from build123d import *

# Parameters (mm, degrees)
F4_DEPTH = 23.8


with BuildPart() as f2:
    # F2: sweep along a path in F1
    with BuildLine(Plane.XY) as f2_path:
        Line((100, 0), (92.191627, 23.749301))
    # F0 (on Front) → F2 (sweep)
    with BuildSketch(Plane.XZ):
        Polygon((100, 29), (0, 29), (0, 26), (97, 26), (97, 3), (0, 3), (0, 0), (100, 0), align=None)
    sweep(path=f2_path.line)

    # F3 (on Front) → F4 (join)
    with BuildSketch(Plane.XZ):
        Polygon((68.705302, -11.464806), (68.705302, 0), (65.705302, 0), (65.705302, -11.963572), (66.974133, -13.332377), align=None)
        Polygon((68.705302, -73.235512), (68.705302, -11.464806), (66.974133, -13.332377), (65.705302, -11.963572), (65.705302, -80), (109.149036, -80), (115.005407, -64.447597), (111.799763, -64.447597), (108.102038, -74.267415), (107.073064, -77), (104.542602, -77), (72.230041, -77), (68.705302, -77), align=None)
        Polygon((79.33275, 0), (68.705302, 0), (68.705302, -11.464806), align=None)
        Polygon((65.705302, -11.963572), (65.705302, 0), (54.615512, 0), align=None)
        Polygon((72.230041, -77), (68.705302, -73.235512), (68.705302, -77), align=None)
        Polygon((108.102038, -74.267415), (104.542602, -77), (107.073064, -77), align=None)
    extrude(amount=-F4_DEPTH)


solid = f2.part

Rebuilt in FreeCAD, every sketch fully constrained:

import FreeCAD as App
import Part
import Sketcher
Q = App.Units.Quantity

doc = App.newDocument("Part")
body = doc.addObject("PartDesign::Body", "Body")

# Sketch on XZ plane
sketch1 = body.newObject("Sketcher::SketchObject", "Sketch")
sketch1.AttachmentSupport = (doc.getObject("XZ_Plane"), [""])
sketch1.MapMode = "FlatFace"
sketch1.addGeometry(Part.LineSegment(App.Vector(100, 29, 0), App.Vector(0, 29, 0)), False)
sketch1.addGeometry(Part.LineSegment(App.Vector(0, 29, 0), App.Vector(0, 26, 0)), False)
sketch1.addGeometry(Part.LineSegment(App.Vector(0, 26, 0), App.Vector(97, 26, 0)), False)
sketch1.addGeometry(Part.LineSegment(App.Vector(97, 26, 0), App.Vector(97, 3, 0)), False)
sketch1.addGeometry(Part.LineSegment(App.Vector(97, 3, 0), App.Vector(0, 3, 0)), False)
sketch1.addGeometry(Part.LineSegment(App.Vector(0, 3, 0), App.Vector(0, 0, 0)), False)
sketch1.addGeometry(Part.LineSegment(App.Vector(0, 0, 0), App.Vector(100, 0, 0)), False)
sketch1.addGeometry(Part.LineSegment(App.Vector(100, 0, 0), App.Vector(100, 29, 0)), False)
sketch1.addConstraint(Sketcher.Constraint("Coincident", 0, 2, 1, 1))
sketch1.addConstraint(Sketcher.Constraint("Coincident", 1, 2, 2, 1))
sketch1.addConstraint(Sketcher.Constraint("Coincident", 2, 2, 3, 1))
sketch1.addConstraint(Sketcher.Constraint("Coincident", 3, 2, 4, 1))
sketch1.addConstraint(Sketcher.Constraint("Coincident", 4, 2, 5, 1))
sketch1.addConstraint(Sketcher.Constraint("Coincident", 5, 2, 6, 1))
sketch1.addConstraint(Sketcher.Constraint("Coincident", 6, 2, 7, 1))
sketch1.addConstraint(Sketcher.Constraint("Coincident", 7, 2, 0, 1))
sketch1.addConstraint(Sketcher.Constraint("Horizontal", 0))
sketch1.addConstraint(Sketcher.Constraint("Vertical", 1))
sketch1.addConstraint(Sketcher.Constraint("Horizontal", 2))
sketch1.addConstraint(Sketcher.Constraint("Vertical", 3))
sketch1.addConstraint(Sketcher.Constraint("Horizontal", 4))
sketch1.addConstraint(Sketcher.Constraint("Vertical", 5))
sketch1.addConstraint(Sketcher.Constraint("Horizontal", 6))
sketch1.addConstraint(Sketcher.Constraint("Vertical", 7))
sketch1.addConstraint(Sketcher.Constraint("Coincident", 5, 2, -1, 1))
sketch1.addConstraint(Sketcher.Constraint("PointOnObject", 0, 2, -2))
sketch1.addConstraint(Sketcher.Constraint("Equal", 1, 5))
sketch1.addConstraint(Sketcher.Constraint("DistanceX", 0, 2, 0, 1, Q("100 mm")))
sketch1.addConstraint(Sketcher.Constraint("DistanceX", 2, 1, 2, 2, Q("97 mm")))
sketch1.addConstraint(Sketcher.Constraint("DistanceY", 1, 2, 1, 1, Q("3 mm")))
sketch1.addConstraint(Sketcher.Constraint("DistanceY", 3, 2, 3, 1, Q("23 mm")))

# Sketch on an angled plane
sketch2 = body.newObject("Sketcher::SketchObject", "Sketch001")
sketch2.Placement = App.Placement(App.Vector(90.24469, 29.670945, 0), App.Rotation(App.Vector(-0.312334923, 0.94997205, 0), App.Vector(0, 0, 1), App.Vector(0.94997205, 0.312334923, 0), "ZXY"))
sketch2.addGeometry(Part.LineSegment(App.Vector(-31.233492, 0, 0), App.Vector(-6.233493, 0, 0)), False)
sketch2.addConstraint(Sketcher.Constraint("Horizontal", 0))
sketch2.addConstraint(Sketcher.Constraint("PointOnObject", 0, 1, -1))
sketch2.addConstraint(Sketcher.Constraint("DistanceX", 0, 1, 0, 2, Q("25 mm")))
sketch2.addConstraint(Sketcher.Constraint("DistanceX", 0, 1, -1, 1, Q("31.233492 mm")))
doc.recompute()

additivepipe = body.newObject("PartDesign::AdditivePipe", "AdditivePipe")
additivepipe.Profile = sketch1
additivepipe.Spine = (sketch2, ["Edge1"])

# Sketch on XZ plane
sketch3 = body.newObject("Sketcher::SketchObject", "Sketch002")
sketch3.AttachmentSupport = (doc.getObject("XZ_Plane"), [""])
sketch3.MapMode = "FlatFace"
sketch3.addGeometry(Part.LineSegment(App.Vector(68.705302, -73.235512, 0), App.Vector(68.705302, -11.464806, 0)), False)
sketch3.addGeometry(Part.LineSegment(App.Vector(68.705302, -11.464806, 0), App.Vector(79.33275, 0, 0)), False)
sketch3.addGeometry(Part.LineSegment(App.Vector(79.33275, 0, 0), App.Vector(54.615512, 0, 0)), False)
sketch3.addGeometry(Part.LineSegment(App.Vector(54.615512, 0, 0), App.Vector(65.705302, -11.963572, 0)), False)
sketch3.addGeometry(Part.LineSegment(App.Vector(65.705302, -11.963572, 0), App.Vector(65.705302, -80, 0)), False)
sketch3.addGeometry(Part.LineSegment(App.Vector(65.705302, -80, 0), App.Vector(109.149036, -80, 0)), False)
sketch3.addGeometry(Part.LineSegment(App.Vector(109.149036, -80, 0), App.Vector(115.005407, -64.447597, 0)), False)
sketch3.addGeometry(Part.LineSegment(App.Vector(115.005407, -64.447597, 0), App.Vector(111.799763, -64.447597, 0)), False)
sketch3.addGeometry(Part.LineSegment(App.Vector(111.799763, -64.447597, 0), App.Vector(108.102038, -74.267415, 0)), False)
sketch3.addGeometry(Part.LineSegment(App.Vector(108.102038, -74.267415, 0), App.Vector(104.542602, -77, 0)), False)
sketch3.addGeometry(Part.LineSegment(App.Vector(104.542602, -77, 0), App.Vector(72.230041, -77, 0)), False)
sketch3.addGeometry(Part.LineSegment(App.Vector(72.230041, -77, 0), App.Vector(68.705302, -73.235512, 0)), False)
sketch3.addConstraint(Sketcher.Constraint("Coincident", 0, 2, 1, 1))
sketch3.addConstraint(Sketcher.Constraint("Coincident", 1, 2, 2, 1))
sketch3.addConstraint(Sketcher.Constraint("Coincident", 2, 2, 3, 1))
sketch3.addConstraint(Sketcher.Constraint("Coincident", 3, 2, 4, 1))
sketch3.addConstraint(Sketcher.Constraint("Coincident", 4, 2, 5, 1))
sketch3.addConstraint(Sketcher.Constraint("Coincident", 5, 2, 6, 1))
sketch3.addConstraint(Sketcher.Constraint("Coincident", 6, 2, 7, 1))
sketch3.addConstraint(Sketcher.Constraint("Coincident", 7, 2, 8, 1))
sketch3.addConstraint(Sketcher.Constraint("Coincident", 8, 2, 9, 1))
sketch3.addConstraint(Sketcher.Constraint("Coincident", 9, 2, 10, 1))
sketch3.addConstraint(Sketcher.Constraint("Coincident", 10, 2, 11, 1))
sketch3.addConstraint(Sketcher.Constraint("Coincident", 11, 2, 0, 1))
sketch3.addConstraint(Sketcher.Constraint("Vertical", 0))
sketch3.addConstraint(Sketcher.Constraint("Horizontal", 2))
sketch3.addConstraint(Sketcher.Constraint("Vertical", 4))
sketch3.addConstraint(Sketcher.Constraint("Horizontal", 5))
sketch3.addConstraint(Sketcher.Constraint("Horizontal", 7))
sketch3.addConstraint(Sketcher.Constraint("Horizontal", 10))
sketch3.addConstraint(Sketcher.Constraint("PointOnObject", 1, 2, -1))
sketch3.addConstraint(Sketcher.Constraint("Parallel", 6, 8))
sketch3.addConstraint(Sketcher.Constraint("DistanceY", 4, 2, -1, 1, Q("80 mm")))
sketch3.addConstraint(Sketcher.Constraint("DistanceY", 9, 2, -1, 1, Q("77 mm")))
sketch3.addConstraint(Sketcher.Constraint("DistanceX", 3, 2, 0, 2, Q("3 mm")))
sketch3.addConstraint(Sketcher.Constraint("DistanceX", 8, 2, 5, 2, Q("1.046998 mm")))
sketch3.addConstraint(Sketcher.Constraint("Distance", 1, Q("15.6328 mm")))
sketch3.addConstraint(Sketcher.Constraint("DistanceX", 2, 2, 2, 1, Q("24.717238 mm")))
sketch3.addConstraint(Sketcher.Constraint("DistanceX", 10, 2, 10, 1, Q("32.312561 mm")))
sketch3.addConstraint(Sketcher.Constraint("DistanceY", 4, 2, 4, 1, Q("68.036428 mm")))
sketch3.addConstraint(Sketcher.Constraint("DistanceX", 4, 2, 9, 2, Q("38.8373 mm")))
sketch3.addConstraint(Sketcher.Constraint("Distance", 8, Q("10.49295 mm")))
sketch3.addConstraint(Sketcher.Constraint("Distance", 11, Q("5.157049 mm")))
sketch3.addConstraint(Sketcher.Constraint("DistanceX", 5, 1, 5, 2, Q("43.443734 mm")))
sketch3.addConstraint(Sketcher.Constraint("DistanceX", 7, 2, 7, 1, Q("3.205644 mm")))
sketch3.addConstraint(Sketcher.Constraint("DistanceY", 0, 1, 0, 2, Q("61.770706 mm")))
sketch3.addConstraint(Sketcher.Constraint("DistanceX", -1, 1, 1, 2, Q("79.33275 mm")))
sketch3.addConstraint(Sketcher.Constraint("DistanceX", 5, 2, 6, 2, Q("5.856371 mm")))
pad1 = body.newObject("PartDesign::Pad", "Pad")
pad1.Profile = sketch3
pad1.Length = 23.8
pad1.Reversed = True

doc.recompute()
